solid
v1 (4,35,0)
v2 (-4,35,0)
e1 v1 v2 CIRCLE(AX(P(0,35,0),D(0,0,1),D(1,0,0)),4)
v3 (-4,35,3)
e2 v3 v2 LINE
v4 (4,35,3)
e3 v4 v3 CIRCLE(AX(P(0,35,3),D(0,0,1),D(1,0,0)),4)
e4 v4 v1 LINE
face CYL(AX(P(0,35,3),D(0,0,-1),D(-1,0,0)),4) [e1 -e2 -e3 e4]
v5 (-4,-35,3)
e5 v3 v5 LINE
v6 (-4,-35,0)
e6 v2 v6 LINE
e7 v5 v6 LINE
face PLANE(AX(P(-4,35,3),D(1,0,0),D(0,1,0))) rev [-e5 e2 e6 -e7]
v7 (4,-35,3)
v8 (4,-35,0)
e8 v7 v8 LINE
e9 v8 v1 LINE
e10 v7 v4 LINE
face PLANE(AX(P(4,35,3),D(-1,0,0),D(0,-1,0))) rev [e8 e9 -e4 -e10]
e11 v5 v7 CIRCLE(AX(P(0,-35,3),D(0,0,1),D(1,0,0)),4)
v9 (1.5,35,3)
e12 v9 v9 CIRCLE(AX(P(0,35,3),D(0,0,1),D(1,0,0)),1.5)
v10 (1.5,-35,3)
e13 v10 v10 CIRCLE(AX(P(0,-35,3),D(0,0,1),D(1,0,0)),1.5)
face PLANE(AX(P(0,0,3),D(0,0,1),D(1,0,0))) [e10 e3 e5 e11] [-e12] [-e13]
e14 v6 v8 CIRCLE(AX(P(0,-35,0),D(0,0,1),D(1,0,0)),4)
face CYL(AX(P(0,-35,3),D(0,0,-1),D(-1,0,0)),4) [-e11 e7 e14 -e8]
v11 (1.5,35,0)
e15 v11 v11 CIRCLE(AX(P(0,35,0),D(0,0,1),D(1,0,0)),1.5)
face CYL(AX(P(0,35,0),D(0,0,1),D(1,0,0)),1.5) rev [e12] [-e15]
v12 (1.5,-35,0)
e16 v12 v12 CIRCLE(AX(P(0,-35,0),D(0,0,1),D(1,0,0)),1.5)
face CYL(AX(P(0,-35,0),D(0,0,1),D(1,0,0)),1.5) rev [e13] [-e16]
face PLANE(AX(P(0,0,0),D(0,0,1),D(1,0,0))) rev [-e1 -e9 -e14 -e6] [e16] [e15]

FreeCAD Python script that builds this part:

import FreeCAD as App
import Part
import Sketcher

V = App.Vector


def add_polygon(sketch, points):
    """Adds a closed chain of lines whose ends are joined by coincident constraints."""
    first, n = sketch.GeometryCount, len(points)
    for a, b in zip(points, points[1:] + points[:1]):
        sketch.addGeometry(Part.LineSegment(App.Vector(*a, 0), App.Vector(*b, 0)), False)
    for i in range(n):
        sketch.addConstraint(Sketcher.Constraint("Coincident", first + i, 2, first + (i + 1) % n, 1))

doc = App.newDocument("Part")
body = doc.addObject("PartDesign::Body", "Body")

# Sketch on XY plane
sketch1 = body.newObject("Sketcher::SketchObject", "Sketch")
sketch1.AttachmentSupport = (doc.getObject("XY_Plane"), [""])
sketch1.MapMode = "FlatFace"
add_polygon(sketch1, [(-4, 35), (-4, -35), (4, -35), (4, 35)])  # lines 0-3
sketch1.addConstraint([
    Sketcher.Constraint("Vertical", 0),
    Sketcher.Constraint("Horizontal", 1),
    Sketcher.Constraint("Vertical", 2),
    Sketcher.Constraint("Horizontal", 3),
    Sketcher.Constraint("Symmetric", 0, 2, 2, 2, -1, 1),
    Sketcher.Constraint("DistanceX", 1, 1, 1, 2, 8.0),
    Sketcher.Constraint("DistanceY", 0, 2, 0, 1, 70.0),
])
pad1 = body.newObject("PartDesign::Pad", "Pad")
pad1.Profile = sketch1
pad1.Length = 3

# Sketch on XY plane
sketch2 = body.newObject("Sketcher::SketchObject", "Sketch001")
sketch2.AttachmentSupport = (doc.getObject("XY_Plane"), [""])
sketch2.MapMode = "FlatFace"
sketch2.addGeometry([
    Part.Circle(V(0, 35, 0), V(0, 0, 1), 4),
    Part.Circle(V(0, -35, 0), V(0, 0, 1), 4),
], False)
sketch2.addConstraint([
    Sketcher.Constraint("Equal", 0, 1),
    Sketcher.Constraint("Symmetric", 0, 3, 1, 3, -1, 1),
    Sketcher.Constraint("PointOnObject", 0, 3, -2),
    Sketcher.Constraint("Diameter", 0, 8.0),
    Sketcher.Constraint("DistanceY", -1, 1, 0, 3, 35.0),
])
pad2 = body.newObject("PartDesign::Pad", "Pad001")
pad2.Profile = sketch2
pad2.Length = 3

# Sketch on XY plane
sketch3 = body.newObject("Sketcher::SketchObject", "Sketch002")
sketch3.AttachmentSupport = (doc.getObject("XY_Plane"), [""])
sketch3.MapMode = "FlatFace"
sketch3.AttachmentOffset = App.Placement(V(0, 0, 3), App.Rotation())
sketch3.addGeometry([
    Part.Circle(V(0, 35, 0), V(0, 0, 1), 1.5),
    Part.Circle(V(0, -35, 0), V(0, 0, 1), 1.5),
], False)
sketch3.addConstraint([
    Sketcher.Constraint("Equal", 0, 1),
    Sketcher.Constraint("Symmetric", 0, 3, 1, 3, -1, 1),
    Sketcher.Constraint("PointOnObject", 0, 3, -2),
    Sketcher.Constraint("Diameter", 0, 3.0),
    Sketcher.Constraint("DistanceY", -1, 1, 0, 3, 35.0),
])
pocket1 = body.newObject("PartDesign::Pocket", "Pocket")
pocket1.Profile = sketch3
pocket1.Length = 3

doc.recompute()
